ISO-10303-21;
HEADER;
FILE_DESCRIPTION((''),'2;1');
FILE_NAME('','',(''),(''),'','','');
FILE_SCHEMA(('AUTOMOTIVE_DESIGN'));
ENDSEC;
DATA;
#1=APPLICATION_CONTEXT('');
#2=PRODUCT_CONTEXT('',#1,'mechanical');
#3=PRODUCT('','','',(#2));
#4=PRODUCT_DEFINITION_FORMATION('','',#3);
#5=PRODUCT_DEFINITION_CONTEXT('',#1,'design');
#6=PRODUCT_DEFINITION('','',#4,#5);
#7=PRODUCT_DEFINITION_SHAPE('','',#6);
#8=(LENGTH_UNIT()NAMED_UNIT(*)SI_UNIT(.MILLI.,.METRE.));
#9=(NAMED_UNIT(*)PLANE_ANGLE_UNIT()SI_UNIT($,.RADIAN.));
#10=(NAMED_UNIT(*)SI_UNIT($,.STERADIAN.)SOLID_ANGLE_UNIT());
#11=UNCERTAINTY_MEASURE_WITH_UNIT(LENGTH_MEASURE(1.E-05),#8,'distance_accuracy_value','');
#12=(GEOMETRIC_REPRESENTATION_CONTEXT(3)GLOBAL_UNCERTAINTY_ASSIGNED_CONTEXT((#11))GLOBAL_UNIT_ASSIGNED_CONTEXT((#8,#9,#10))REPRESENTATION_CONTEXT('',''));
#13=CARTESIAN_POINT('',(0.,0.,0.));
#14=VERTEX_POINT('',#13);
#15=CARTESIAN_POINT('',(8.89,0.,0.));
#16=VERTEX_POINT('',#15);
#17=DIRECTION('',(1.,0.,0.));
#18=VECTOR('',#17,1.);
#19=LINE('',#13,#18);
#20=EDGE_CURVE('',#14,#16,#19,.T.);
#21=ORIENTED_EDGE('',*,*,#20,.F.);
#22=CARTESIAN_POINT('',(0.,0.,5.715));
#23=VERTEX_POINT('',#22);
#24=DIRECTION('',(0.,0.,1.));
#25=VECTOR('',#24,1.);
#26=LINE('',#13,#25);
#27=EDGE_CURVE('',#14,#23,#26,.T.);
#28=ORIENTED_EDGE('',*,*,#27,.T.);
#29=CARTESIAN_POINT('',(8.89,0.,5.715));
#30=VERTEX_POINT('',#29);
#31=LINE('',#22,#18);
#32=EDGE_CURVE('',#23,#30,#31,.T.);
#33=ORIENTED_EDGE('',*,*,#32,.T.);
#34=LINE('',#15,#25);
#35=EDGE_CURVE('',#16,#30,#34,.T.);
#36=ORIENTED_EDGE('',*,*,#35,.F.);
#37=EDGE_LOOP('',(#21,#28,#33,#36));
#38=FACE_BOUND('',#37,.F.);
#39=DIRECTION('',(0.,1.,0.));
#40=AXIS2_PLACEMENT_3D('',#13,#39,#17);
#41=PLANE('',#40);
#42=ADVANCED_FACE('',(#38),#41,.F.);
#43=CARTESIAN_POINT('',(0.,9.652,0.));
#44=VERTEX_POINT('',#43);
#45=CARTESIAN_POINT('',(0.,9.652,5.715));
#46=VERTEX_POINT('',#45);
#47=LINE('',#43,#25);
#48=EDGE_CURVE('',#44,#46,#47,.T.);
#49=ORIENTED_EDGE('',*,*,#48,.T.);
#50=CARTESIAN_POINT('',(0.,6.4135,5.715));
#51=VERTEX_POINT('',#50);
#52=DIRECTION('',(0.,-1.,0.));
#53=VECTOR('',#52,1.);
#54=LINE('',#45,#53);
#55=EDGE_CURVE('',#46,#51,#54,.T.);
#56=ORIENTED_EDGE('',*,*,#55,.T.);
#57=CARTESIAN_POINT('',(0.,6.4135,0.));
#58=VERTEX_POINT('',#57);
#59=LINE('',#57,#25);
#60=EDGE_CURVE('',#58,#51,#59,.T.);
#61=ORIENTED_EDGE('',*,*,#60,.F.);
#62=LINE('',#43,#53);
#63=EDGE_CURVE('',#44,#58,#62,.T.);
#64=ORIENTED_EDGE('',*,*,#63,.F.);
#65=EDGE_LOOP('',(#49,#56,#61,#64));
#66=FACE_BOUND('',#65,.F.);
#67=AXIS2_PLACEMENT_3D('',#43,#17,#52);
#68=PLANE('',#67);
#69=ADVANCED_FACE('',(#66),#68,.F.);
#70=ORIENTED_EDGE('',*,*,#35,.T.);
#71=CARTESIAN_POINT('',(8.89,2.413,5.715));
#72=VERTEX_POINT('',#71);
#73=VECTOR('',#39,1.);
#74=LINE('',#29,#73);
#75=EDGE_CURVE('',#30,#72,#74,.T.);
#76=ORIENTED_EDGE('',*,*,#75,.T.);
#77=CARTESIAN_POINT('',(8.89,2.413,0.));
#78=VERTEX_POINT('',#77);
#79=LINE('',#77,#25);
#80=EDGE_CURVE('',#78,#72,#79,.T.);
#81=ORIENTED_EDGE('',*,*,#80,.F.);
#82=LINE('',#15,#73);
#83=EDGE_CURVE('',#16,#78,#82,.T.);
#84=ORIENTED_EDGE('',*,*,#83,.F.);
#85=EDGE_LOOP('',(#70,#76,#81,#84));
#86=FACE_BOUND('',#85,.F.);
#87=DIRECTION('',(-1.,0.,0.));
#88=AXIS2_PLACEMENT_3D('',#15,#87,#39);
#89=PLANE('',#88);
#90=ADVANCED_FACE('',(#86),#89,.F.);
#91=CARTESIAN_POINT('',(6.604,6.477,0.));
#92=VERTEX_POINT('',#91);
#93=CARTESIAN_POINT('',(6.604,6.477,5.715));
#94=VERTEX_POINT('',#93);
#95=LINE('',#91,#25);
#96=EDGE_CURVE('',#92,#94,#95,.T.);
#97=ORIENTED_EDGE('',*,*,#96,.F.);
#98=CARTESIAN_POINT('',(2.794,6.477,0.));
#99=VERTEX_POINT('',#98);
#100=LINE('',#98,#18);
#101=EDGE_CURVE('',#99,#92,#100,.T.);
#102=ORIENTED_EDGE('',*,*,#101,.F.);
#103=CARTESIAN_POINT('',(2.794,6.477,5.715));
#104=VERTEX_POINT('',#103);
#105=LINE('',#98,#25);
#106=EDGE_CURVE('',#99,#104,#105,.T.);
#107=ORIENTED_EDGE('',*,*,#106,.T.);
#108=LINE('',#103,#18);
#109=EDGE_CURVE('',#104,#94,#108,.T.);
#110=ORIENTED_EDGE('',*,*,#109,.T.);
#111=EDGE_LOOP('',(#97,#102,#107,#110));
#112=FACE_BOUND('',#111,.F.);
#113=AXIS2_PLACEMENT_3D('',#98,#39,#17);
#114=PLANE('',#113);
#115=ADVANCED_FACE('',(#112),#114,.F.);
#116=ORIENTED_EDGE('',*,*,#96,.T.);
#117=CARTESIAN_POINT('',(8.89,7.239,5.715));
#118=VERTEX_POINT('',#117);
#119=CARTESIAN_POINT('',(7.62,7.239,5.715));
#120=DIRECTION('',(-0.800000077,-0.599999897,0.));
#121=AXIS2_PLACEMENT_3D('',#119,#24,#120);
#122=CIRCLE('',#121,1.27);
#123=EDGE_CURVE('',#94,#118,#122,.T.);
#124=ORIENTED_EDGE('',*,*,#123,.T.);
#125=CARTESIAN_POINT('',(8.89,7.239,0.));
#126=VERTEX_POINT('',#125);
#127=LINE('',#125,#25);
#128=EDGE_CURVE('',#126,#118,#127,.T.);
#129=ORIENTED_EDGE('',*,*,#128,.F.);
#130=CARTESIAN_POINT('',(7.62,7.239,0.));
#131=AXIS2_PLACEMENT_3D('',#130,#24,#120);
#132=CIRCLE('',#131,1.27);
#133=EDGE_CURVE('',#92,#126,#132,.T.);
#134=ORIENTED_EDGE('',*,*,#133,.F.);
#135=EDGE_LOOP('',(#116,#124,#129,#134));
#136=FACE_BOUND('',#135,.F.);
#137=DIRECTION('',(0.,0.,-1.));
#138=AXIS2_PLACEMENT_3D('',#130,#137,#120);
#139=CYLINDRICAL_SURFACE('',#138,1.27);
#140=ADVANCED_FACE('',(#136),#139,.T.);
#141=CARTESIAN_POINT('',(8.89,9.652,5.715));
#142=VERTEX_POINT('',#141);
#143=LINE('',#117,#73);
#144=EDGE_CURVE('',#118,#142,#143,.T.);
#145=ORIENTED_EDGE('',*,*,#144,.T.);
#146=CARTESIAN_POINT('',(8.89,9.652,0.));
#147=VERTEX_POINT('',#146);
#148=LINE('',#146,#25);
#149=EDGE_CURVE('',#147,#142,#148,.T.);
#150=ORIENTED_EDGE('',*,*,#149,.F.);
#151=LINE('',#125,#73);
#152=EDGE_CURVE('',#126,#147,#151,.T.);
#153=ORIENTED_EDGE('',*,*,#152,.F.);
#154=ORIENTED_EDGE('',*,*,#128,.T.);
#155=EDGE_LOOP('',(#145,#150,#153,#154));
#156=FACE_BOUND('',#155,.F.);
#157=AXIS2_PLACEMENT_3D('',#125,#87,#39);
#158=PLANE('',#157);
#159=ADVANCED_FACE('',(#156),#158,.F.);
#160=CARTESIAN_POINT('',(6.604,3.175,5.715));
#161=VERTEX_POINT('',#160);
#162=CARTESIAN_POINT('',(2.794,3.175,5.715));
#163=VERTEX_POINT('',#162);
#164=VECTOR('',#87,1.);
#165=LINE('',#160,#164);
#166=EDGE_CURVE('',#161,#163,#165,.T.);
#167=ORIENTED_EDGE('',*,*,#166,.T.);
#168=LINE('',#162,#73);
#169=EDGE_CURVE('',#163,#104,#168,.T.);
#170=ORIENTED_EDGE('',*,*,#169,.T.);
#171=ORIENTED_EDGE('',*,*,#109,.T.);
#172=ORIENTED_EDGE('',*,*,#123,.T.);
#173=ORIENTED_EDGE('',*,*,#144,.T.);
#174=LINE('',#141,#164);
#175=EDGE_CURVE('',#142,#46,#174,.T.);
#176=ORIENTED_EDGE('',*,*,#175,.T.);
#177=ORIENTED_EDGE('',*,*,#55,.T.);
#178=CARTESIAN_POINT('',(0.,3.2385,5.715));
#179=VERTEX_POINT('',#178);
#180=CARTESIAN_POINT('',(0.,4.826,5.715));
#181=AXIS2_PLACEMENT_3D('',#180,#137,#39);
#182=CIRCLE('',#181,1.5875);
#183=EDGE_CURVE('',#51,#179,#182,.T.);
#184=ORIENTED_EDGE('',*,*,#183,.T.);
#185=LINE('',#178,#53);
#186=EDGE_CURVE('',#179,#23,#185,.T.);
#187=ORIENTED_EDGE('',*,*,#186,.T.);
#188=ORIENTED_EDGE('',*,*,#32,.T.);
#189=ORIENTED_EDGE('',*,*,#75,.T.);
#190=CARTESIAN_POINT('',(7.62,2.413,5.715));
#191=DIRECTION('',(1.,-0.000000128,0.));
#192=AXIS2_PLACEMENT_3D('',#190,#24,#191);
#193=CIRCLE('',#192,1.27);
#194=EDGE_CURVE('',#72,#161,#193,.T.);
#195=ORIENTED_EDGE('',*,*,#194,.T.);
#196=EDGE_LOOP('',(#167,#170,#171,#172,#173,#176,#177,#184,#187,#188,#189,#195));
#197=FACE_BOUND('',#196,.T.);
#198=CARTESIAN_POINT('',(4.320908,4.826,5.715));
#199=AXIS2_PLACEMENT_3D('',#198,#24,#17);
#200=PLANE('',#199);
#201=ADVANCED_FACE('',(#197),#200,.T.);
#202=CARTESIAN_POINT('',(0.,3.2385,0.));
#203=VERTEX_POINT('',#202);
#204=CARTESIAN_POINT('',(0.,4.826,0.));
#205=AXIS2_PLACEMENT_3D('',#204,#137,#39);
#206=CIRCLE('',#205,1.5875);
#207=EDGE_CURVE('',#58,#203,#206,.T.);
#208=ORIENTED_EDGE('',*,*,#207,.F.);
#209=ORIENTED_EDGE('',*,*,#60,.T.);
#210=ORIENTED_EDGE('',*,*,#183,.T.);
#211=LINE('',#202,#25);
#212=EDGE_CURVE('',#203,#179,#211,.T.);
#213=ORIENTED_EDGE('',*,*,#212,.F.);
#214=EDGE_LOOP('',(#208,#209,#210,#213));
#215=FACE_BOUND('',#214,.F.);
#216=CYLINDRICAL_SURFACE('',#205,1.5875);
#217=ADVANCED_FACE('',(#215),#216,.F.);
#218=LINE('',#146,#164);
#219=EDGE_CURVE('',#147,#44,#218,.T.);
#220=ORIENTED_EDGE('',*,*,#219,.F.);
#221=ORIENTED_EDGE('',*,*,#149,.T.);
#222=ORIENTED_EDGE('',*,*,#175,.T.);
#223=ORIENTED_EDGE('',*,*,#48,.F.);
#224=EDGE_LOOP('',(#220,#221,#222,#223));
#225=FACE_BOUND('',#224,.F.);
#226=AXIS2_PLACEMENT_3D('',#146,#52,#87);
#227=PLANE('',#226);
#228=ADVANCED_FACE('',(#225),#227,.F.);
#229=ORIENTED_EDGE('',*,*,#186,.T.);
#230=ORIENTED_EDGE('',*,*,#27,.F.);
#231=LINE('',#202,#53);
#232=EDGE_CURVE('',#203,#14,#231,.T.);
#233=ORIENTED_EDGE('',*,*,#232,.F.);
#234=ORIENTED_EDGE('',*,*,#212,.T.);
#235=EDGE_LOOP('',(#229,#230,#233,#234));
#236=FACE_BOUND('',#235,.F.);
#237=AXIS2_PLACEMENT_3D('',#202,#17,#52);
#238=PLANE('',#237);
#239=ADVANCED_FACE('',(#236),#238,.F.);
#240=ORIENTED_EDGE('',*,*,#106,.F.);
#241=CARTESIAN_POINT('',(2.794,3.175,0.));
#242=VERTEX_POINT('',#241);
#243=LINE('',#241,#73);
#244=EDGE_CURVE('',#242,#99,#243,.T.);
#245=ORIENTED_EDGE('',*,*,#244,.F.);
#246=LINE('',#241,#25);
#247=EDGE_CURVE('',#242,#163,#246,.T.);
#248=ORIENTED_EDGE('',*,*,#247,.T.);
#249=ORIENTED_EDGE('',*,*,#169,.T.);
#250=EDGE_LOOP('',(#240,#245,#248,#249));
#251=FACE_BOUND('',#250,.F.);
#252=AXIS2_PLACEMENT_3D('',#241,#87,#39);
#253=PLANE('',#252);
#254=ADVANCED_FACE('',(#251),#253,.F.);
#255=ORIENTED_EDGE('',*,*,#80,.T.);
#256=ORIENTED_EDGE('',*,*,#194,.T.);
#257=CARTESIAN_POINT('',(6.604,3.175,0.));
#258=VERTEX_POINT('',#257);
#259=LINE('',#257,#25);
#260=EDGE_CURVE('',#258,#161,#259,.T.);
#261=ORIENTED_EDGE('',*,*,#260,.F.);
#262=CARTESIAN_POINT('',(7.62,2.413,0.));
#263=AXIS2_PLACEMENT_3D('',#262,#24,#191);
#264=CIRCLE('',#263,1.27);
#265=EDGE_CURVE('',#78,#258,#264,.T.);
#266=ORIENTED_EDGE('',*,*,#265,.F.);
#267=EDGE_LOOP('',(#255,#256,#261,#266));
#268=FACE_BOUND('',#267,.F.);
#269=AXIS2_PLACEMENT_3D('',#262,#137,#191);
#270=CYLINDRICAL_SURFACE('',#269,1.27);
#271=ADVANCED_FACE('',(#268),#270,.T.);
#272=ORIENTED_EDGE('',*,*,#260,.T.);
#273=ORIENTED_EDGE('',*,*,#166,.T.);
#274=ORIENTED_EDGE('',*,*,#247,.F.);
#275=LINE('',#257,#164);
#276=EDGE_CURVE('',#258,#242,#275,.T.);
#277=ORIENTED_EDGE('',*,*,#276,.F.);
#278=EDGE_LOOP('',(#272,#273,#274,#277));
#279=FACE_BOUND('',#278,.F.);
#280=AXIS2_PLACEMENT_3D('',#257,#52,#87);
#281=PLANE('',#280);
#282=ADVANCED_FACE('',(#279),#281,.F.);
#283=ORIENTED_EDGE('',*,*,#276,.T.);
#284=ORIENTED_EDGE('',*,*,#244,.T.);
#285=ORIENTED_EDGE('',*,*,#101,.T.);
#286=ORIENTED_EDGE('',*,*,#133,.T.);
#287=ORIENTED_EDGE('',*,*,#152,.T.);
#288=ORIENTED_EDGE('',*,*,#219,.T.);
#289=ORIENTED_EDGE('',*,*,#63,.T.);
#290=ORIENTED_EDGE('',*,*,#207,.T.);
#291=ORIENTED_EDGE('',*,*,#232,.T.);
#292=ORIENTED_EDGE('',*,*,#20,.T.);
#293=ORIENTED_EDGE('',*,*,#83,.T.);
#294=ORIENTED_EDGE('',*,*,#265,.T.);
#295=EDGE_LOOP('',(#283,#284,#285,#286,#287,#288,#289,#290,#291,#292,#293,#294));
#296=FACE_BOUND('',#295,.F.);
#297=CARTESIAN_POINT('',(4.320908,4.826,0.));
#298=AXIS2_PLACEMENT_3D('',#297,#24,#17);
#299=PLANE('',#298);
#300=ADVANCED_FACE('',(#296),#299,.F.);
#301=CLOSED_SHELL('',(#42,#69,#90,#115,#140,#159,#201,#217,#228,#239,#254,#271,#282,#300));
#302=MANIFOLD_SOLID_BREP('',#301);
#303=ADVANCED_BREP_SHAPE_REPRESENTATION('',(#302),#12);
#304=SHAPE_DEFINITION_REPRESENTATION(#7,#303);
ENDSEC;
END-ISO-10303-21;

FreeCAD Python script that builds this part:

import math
import FreeCAD as App
import Part
import Sketcher
Q = App.Units.Quantity

doc = App.newDocument("Part")
body = doc.addObject("PartDesign::Body", "Body")

sketch1 = body.newObject("Sketcher::SketchObject", "Sketch")
sketch1.AttachmentSupport = (doc.getObject("XY_Plane"), [""])
sketch1.MapMode = "FlatFace"
sketch1.addGeometry([
    Part.LineSegment(App.Vector(8.9, 9.7, 0), App.Vector(0, 9.7, 0)),
    Part.LineSegment(App.Vector(0, 9.7, 0), App.Vector(0, 6.4, 0)),
    Part.ArcOfCircle(Part.Circle(App.Vector(0, 4.8, 0), App.Vector(0, 0, 1), 1.6), math.radians(-90), math.radians(90)),
    Part.LineSegment(App.Vector(0, 3.2, 0), App.Vector(0, 0, 0)),
    Part.LineSegment(App.Vector(0, 0, 0), App.Vector(8.9, 0, 0)),
    Part.LineSegment(App.Vector(8.9, 0, 0), App.Vector(8.9, 2.4, 0)),
    Part.ArcOfCircle(Part.Circle(App.Vector(7.6, 2.4, 0), App.Vector(0, 0, 1), 1.3), math.radians(0), math.radians(143)),
    Part.LineSegment(App.Vector(6.6, 3.2, 0), App.Vector(2.8, 3.2, 0)),
    Part.LineSegment(App.Vector(2.8, 3.2, 0), App.Vector(2.8, 6.5, 0)),
    Part.LineSegment(App.Vector(2.8, 6.5, 0), App.Vector(6.6, 6.5, 0)),
    Part.ArcOfCircle(Part.Circle(App.Vector(7.6, 7.2, 0), App.Vector(0, 0, 1), 1.3), math.radians(-143), math.radians(0)),
    Part.LineSegment(App.Vector(8.9, 7.2, 0), App.Vector(8.9, 9.7, 0)),
], False)
sketch1.addConstraint([
    Sketcher.Constraint("Coincident", 0, 2, 1, 1),
    Sketcher.Constraint("Coincident", 1, 2, 2, 2),
    Sketcher.Constraint("Coincident", 2, 1, 3, 1),
    Sketcher.Constraint("Coincident", 3, 2, 4, 1),
    Sketcher.Constraint("Coincident", 4, 2, 5, 1),
    Sketcher.Constraint("Tangent", 5, 2, 6, 1),
    Sketcher.Constraint("Coincident", 6, 2, 7, 1),
    Sketcher.Constraint("Coincident", 7, 2, 8, 1),
    Sketcher.Constraint("Coincident", 8, 2, 9, 1),
    Sketcher.Constraint("Coincident", 9, 2, 10, 1),
    Sketcher.Constraint("Tangent", 10, 2, 11, 1),
    Sketcher.Constraint("Coincident", 11, 2, 0, 1),
    Sketcher.Constraint("Horizontal", 0),
    Sketcher.Constraint("Vertical", 1),
    Sketcher.Constraint("Vertical", 3),
    Sketcher.Constraint("Horizontal", 4),
    Sketcher.Constraint("Vertical", 5),
    Sketcher.Constraint("Horizontal", 7),
    Sketcher.Constraint("Vertical", 8),
    Sketcher.Constraint("Horizontal", 9),
    Sketcher.Constraint("Vertical", 11),
    Sketcher.Constraint("Coincident", 3, 2, -1, 1),
    Sketcher.Constraint("Equal", 6, 10),
    Sketcher.Constraint("PointOnObject", 2, 3, -2),
    Sketcher.Constraint("PointOnObject", 0, 2, -2),
    Sketcher.Constraint("Vertical", 6, 3, 10, 3),
    Sketcher.Constraint("Vertical", 6, 2, 9, 2),
    Sketcher.Constraint("Equal", 1, 3),
    Sketcher.Constraint("Equal", 5, 11),
    Sketcher.Constraint("Radius", 6, Q("0.05 in")),
    Sketcher.Constraint("Radius", 2, Q("0.0625 in")),
    Sketcher.Constraint("DistanceX", 0, 2, 0, 1, Q("0.35 in")),
    Sketcher.Constraint("DistanceX", 7, 2, 7, 1, Q("0.15 in")),
    Sketcher.Constraint("DistanceY", 8, 1, 8, 2, Q("0.13 in")),
    Sketcher.Constraint("DistanceY", 5, 1, 5, 2, Q("0.095 in")),
    Sketcher.Constraint("DistanceY", -1, 1, 2, 3, Q("0.19 in")),
])
pad1 = body.newObject("PartDesign::Pad", "Pad")
pad1.Profile = sketch1
pad1.Length = Q("0.225 in")

doc.recompute()
